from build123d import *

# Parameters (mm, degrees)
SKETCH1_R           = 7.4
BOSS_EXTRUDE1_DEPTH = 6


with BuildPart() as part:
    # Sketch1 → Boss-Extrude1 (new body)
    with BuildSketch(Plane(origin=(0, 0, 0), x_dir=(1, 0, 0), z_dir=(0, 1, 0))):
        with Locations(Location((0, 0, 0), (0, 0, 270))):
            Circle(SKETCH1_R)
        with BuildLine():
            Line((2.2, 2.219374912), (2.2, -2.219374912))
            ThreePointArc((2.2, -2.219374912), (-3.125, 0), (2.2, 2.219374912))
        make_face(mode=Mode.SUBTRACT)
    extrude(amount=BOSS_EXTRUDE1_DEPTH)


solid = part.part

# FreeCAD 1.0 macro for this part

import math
import FreeCAD as App
import Part
import Sketcher
from FreeCAD import Vector
Q = App.Units.Quantity

doc = App.newDocument("Part")
params = doc.addObject("Spreadsheet::Sheet", "Params")
for row, (alias, value) in enumerate([
    ("sketch1_diameter", "14.8 mm"),
    ("pad1_length", "6 mm"),
], start=1):
    params.set(f"A{row}", alias)
    params.set(f"B{row}", "=" + value)
    params.setAlias(f"B{row}", alias)

body = doc.addObject("PartDesign::Body", "Body")

sketch1 = body.newObject("Sketcher::SketchObject", "Sketch")
sketch1.AttachmentSupport = (doc.getObject("XZ_Plane"), [""])
sketch1.MapMode = "FlatFace"
sketch1.addGeometry([
    Part.Circle(Vector(0, 0, 0), Vector(0, 0, 1), 7.4),
    Part.ArcOfCircle(Part.Circle(Vector(0, 0, 0), Vector(0, 0, 1), 3.125), math.radians(45.251188), math.radians(314.748812)),
    Part.LineSegment(Vector(2.2, -2.219375, 0), Vector(2.2, 2.219375, 0)),
], False)
sketch1.addConstraint([
    Sketcher.Constraint("Coincident", 1, 1, 2, 2),
    Sketcher.Constraint("Coincident", 2, 1, 1, 2),
    Sketcher.Constraint("Vertical", 2),
    Sketcher.Constraint("Coincident", 0, 3, -1, 1),
    Sketcher.Constraint("Coincident", 1, 3, -1, 1),
    Sketcher.Constraint("Diameter", 0, Q("14.8 mm")),
    Sketcher.Constraint("Radius", 1, Q("3.125 mm")),
    Sketcher.Constraint("DistanceX", -1, 1, 1, 1, Q("2.2 mm")),
])
sketch1.setExpression("Constraints[5]", "Params.sketch1_diameter")
pad1 = body.newObject("PartDesign::Pad", "Pad")
pad1.Profile = sketch1
pad1.setExpression("Length", "Params.pad1_length")
pad1.Reversed = True

doc.recompute()
